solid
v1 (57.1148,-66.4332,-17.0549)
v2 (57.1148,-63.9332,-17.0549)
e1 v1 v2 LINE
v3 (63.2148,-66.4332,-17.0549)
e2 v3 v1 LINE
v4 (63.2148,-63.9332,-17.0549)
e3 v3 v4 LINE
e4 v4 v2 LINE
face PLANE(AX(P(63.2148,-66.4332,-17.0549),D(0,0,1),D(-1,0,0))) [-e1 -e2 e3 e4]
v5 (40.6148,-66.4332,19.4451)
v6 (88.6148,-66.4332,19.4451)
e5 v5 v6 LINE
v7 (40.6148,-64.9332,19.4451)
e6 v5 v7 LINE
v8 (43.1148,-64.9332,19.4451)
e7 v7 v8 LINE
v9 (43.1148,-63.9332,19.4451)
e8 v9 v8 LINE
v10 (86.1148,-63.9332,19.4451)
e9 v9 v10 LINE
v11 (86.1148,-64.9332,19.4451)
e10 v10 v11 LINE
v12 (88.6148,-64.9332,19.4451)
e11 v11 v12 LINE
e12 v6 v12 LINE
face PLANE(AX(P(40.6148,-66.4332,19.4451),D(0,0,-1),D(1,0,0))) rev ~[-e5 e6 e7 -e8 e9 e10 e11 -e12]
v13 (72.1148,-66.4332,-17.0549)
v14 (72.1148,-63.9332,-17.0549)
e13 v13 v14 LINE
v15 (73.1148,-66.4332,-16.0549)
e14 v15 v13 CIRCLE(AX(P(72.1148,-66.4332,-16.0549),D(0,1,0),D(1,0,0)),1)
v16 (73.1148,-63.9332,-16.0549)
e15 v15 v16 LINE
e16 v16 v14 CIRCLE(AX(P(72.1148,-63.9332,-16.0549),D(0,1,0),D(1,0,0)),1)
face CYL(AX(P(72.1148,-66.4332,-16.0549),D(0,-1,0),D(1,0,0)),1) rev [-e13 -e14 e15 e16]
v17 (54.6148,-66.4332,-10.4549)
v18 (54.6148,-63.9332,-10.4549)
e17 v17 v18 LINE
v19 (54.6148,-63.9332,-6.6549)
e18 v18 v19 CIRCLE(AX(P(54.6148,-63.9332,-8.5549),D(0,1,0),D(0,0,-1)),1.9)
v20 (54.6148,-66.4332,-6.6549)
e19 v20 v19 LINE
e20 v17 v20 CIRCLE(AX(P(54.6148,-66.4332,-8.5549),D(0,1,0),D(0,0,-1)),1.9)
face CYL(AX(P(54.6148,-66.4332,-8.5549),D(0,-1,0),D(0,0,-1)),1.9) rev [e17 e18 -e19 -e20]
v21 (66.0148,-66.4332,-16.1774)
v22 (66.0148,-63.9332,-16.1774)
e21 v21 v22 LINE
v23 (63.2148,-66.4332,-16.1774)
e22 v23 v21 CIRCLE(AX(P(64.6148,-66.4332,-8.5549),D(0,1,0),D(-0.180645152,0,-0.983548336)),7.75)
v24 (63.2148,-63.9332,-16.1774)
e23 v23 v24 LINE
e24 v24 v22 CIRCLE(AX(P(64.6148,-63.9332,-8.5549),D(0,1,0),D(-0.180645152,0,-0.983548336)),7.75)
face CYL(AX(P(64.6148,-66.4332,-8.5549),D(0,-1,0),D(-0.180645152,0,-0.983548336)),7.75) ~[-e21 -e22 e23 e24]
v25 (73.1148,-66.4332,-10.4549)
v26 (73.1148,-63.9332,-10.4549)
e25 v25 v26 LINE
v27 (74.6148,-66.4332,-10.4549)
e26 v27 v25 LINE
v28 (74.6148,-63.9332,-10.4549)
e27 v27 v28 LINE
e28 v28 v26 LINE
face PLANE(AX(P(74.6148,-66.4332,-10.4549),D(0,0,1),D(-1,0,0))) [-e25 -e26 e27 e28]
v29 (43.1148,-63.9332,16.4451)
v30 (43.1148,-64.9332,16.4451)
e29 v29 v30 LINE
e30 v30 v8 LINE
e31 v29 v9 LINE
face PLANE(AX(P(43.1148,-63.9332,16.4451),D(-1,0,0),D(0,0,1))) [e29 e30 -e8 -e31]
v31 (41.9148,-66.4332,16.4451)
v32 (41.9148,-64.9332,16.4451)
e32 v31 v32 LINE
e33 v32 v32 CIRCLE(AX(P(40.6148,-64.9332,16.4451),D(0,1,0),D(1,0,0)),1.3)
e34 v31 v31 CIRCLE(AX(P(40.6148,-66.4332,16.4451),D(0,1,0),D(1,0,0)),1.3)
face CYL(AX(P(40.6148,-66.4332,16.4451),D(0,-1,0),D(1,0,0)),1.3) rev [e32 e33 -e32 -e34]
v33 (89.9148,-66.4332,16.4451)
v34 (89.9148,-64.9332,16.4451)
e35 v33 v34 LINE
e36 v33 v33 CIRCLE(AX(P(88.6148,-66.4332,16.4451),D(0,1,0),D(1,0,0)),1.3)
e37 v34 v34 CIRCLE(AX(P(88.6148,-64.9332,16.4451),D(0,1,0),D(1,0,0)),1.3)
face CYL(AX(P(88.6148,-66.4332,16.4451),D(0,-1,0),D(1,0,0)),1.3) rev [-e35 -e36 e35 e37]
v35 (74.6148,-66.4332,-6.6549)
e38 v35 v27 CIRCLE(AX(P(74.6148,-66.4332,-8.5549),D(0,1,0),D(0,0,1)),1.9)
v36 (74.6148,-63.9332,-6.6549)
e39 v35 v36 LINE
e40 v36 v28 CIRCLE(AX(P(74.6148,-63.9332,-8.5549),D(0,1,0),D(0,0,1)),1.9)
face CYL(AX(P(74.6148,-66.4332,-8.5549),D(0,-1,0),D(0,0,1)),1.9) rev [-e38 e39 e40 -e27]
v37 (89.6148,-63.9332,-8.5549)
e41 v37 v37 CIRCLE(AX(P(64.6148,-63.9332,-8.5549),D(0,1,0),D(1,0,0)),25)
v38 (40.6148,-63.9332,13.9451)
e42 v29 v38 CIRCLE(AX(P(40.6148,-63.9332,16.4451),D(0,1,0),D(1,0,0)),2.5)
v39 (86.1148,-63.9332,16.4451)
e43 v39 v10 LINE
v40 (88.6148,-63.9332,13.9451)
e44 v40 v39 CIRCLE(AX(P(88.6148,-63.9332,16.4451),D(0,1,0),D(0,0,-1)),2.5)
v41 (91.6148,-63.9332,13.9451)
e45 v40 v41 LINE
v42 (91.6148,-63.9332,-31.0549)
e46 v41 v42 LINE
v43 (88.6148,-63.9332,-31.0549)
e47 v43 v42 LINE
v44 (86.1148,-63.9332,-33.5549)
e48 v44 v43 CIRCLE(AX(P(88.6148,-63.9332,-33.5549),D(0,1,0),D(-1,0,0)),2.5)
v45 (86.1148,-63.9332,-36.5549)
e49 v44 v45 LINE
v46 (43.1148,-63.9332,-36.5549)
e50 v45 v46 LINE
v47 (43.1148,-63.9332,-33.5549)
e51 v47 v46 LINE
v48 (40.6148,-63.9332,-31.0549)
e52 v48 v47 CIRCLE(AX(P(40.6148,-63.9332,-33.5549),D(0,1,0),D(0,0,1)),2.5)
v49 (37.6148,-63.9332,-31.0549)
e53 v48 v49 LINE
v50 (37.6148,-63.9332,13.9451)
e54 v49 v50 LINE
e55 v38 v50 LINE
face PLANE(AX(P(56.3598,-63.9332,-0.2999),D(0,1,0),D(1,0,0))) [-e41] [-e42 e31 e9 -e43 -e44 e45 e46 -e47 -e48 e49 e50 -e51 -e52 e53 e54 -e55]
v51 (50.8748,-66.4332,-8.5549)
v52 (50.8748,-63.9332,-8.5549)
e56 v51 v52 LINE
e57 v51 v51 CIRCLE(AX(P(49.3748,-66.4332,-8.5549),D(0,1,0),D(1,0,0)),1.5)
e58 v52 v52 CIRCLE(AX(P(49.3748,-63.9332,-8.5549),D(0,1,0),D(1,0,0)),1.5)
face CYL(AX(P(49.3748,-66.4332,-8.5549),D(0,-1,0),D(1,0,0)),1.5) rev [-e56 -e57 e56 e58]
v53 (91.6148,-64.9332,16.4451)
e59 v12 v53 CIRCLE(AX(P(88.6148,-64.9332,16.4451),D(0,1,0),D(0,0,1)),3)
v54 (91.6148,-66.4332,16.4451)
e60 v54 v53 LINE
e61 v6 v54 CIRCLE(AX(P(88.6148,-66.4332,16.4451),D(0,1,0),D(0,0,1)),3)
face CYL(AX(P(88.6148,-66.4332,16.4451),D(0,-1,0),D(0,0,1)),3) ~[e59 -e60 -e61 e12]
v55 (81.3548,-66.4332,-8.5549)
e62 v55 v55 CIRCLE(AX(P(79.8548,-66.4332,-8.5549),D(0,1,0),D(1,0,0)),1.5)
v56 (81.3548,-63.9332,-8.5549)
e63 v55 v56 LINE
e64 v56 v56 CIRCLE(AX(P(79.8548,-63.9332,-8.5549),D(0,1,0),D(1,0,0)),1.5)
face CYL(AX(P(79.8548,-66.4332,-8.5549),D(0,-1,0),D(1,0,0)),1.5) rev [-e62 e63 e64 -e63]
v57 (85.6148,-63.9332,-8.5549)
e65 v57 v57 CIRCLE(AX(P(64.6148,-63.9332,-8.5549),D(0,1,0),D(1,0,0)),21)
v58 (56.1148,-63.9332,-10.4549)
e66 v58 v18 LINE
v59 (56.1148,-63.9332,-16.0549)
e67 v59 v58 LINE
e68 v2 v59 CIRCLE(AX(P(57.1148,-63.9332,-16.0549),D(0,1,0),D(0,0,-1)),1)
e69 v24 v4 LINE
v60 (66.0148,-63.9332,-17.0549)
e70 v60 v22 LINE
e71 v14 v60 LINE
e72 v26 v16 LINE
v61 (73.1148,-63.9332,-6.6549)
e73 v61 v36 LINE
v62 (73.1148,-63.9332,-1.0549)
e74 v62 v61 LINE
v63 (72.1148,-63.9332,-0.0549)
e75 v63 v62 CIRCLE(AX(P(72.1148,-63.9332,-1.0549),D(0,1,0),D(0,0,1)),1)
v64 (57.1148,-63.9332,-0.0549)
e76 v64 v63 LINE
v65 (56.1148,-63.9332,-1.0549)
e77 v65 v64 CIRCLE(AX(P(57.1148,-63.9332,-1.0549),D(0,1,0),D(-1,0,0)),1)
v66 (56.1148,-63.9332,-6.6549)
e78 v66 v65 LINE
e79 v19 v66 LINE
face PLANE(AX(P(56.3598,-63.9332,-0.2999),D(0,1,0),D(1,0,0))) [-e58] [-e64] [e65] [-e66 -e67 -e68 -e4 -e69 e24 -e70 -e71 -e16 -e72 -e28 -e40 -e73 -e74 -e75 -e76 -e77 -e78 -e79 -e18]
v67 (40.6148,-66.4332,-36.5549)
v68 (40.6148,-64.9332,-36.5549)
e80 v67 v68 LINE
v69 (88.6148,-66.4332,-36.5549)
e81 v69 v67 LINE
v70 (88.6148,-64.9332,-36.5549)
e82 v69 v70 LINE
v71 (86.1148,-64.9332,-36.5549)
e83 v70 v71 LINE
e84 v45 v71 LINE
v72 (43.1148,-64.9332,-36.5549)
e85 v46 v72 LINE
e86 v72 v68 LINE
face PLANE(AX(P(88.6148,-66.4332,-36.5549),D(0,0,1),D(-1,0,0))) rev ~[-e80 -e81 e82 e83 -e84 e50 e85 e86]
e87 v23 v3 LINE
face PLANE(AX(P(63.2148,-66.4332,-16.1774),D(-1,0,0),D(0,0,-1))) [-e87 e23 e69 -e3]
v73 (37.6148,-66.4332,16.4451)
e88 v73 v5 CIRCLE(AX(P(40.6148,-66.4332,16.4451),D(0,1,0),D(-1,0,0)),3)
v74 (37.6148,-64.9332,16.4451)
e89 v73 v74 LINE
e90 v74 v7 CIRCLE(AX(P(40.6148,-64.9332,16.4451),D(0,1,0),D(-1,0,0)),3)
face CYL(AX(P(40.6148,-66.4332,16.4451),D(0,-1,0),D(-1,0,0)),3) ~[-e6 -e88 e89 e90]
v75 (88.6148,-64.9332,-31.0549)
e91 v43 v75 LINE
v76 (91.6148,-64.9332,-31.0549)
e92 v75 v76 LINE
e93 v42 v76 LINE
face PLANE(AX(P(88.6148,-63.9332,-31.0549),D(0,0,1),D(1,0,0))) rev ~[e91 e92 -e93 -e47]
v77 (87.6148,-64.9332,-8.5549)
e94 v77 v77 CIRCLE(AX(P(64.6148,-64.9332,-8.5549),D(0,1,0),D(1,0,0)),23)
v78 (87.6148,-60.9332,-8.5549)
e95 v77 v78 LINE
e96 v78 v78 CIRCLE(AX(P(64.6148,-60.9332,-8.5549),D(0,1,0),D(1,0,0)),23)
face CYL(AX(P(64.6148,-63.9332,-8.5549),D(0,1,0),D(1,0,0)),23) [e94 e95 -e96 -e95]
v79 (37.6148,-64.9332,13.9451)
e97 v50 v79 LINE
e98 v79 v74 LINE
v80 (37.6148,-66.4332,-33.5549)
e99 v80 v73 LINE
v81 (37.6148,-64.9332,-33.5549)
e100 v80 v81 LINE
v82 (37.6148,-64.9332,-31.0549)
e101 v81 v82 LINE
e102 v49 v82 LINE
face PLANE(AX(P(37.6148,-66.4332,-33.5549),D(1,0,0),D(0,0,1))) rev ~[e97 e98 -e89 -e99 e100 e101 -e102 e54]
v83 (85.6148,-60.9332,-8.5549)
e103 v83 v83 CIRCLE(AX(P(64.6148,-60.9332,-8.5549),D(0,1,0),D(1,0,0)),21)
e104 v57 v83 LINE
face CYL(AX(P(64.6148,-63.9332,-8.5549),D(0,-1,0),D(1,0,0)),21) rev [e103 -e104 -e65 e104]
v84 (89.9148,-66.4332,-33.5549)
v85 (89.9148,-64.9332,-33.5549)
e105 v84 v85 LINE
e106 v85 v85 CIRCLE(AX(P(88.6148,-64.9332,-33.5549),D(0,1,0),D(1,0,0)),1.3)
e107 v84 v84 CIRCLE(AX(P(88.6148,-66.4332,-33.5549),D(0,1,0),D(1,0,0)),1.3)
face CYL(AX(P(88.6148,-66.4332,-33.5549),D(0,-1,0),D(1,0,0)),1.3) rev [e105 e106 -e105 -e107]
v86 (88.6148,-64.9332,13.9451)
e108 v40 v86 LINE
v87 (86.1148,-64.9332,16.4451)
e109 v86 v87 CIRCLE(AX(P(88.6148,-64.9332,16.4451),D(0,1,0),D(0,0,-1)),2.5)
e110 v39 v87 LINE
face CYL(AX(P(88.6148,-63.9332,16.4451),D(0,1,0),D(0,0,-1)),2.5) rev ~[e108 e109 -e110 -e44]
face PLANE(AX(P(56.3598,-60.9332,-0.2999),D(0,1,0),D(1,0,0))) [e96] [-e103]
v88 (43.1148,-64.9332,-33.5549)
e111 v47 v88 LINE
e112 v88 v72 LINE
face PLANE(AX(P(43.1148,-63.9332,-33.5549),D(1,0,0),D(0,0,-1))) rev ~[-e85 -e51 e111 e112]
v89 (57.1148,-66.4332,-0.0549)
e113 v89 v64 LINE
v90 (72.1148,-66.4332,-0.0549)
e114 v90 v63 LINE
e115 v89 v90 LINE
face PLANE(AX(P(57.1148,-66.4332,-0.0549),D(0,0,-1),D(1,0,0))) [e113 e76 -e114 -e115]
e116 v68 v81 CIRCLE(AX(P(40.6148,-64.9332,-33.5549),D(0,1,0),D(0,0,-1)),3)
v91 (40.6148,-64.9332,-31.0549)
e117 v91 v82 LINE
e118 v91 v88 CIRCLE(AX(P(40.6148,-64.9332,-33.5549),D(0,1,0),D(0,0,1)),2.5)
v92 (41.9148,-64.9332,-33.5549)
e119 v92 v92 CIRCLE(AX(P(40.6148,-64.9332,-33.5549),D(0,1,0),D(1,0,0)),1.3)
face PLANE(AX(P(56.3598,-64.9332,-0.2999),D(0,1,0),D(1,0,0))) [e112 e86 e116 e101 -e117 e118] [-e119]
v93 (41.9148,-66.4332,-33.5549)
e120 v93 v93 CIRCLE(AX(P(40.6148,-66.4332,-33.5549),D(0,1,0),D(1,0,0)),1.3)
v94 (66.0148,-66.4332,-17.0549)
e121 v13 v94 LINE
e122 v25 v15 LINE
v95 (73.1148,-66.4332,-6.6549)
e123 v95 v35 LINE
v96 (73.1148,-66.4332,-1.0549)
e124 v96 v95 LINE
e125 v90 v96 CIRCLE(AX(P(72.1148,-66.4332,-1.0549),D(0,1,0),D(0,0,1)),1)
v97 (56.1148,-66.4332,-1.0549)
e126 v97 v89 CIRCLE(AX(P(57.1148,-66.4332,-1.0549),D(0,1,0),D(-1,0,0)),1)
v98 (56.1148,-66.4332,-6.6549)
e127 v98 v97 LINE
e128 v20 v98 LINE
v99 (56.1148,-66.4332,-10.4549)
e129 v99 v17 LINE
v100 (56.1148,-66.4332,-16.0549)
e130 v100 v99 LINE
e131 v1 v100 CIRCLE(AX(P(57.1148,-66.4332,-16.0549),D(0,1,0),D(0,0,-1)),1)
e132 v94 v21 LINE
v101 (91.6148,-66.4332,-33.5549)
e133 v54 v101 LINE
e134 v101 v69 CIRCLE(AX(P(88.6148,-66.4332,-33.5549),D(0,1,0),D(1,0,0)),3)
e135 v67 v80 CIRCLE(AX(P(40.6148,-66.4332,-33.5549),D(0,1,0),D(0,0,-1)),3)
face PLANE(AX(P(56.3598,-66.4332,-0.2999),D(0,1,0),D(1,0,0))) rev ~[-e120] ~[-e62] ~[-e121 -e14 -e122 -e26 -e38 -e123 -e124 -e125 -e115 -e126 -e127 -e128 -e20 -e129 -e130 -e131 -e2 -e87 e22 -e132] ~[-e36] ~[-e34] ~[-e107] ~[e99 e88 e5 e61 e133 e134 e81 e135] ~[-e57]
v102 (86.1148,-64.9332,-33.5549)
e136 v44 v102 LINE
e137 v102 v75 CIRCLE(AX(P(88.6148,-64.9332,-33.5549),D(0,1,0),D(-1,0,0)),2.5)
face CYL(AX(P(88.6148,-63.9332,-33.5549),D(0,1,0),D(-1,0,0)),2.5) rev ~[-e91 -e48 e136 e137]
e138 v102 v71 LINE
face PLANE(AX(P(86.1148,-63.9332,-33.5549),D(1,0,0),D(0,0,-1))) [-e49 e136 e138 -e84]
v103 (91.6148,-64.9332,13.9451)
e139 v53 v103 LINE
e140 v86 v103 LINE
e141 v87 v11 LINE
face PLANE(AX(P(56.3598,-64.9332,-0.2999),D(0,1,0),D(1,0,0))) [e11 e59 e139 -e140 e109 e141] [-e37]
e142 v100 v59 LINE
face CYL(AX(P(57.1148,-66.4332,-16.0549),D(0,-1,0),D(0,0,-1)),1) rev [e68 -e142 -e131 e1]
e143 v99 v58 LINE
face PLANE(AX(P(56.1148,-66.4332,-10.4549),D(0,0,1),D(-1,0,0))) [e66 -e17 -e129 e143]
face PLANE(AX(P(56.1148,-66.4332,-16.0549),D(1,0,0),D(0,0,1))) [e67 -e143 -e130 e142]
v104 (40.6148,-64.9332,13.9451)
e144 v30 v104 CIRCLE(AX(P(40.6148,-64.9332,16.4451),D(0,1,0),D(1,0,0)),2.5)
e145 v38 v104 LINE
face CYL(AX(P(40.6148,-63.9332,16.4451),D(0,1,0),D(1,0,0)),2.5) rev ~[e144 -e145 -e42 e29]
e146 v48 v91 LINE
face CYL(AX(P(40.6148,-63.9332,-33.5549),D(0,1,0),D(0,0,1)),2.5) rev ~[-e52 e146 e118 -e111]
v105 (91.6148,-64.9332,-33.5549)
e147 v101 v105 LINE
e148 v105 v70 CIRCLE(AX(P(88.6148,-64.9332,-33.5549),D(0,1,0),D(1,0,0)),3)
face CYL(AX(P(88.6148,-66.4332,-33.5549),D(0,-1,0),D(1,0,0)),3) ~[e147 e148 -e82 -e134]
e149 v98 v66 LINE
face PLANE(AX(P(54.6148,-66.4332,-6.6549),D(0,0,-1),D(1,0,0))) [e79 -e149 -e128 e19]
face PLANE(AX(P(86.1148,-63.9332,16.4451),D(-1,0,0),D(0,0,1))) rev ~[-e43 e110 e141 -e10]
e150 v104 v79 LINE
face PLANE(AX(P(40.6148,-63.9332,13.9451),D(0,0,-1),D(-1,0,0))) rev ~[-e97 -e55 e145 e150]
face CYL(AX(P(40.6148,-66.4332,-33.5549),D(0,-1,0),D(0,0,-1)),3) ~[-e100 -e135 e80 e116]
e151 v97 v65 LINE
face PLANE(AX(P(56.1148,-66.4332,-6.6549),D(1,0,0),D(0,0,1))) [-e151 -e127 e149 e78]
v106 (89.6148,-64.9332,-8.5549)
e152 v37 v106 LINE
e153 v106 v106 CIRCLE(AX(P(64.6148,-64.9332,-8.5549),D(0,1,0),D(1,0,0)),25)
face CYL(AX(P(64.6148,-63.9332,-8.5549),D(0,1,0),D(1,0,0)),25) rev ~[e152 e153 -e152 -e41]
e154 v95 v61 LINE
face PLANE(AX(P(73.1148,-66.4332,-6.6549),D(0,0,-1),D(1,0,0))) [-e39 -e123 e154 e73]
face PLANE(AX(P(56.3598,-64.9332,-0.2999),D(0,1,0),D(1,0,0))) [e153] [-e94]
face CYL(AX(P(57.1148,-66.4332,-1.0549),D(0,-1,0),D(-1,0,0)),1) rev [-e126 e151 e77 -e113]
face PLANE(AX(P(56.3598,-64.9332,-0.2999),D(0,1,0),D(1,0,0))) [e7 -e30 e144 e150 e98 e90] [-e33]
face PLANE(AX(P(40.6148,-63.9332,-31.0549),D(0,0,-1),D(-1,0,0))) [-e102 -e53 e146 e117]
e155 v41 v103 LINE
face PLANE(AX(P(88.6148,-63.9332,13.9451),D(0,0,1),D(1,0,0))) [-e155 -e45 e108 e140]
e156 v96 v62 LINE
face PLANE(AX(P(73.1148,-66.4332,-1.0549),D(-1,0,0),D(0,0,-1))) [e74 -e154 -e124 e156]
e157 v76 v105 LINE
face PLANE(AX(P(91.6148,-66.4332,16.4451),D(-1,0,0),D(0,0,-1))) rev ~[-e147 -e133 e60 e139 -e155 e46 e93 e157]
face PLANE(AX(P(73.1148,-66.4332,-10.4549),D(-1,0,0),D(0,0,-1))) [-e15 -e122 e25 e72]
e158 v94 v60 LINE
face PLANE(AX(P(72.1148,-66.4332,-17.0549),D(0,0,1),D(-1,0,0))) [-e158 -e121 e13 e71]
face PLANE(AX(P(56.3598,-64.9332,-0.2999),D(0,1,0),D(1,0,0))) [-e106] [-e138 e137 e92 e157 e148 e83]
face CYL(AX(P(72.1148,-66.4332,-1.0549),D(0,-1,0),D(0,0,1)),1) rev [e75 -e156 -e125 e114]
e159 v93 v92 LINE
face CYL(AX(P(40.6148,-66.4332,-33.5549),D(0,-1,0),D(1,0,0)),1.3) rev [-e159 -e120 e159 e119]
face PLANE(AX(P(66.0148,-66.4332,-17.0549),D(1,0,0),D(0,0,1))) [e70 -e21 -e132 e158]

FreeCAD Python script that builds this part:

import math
import FreeCAD as App
import Part
import Sketcher

doc = App.newDocument("Part")
body = doc.addObject("PartDesign::Body", "Body")

# Sketch on XZ plane
sketch1 = body.newObject("Sketcher::SketchObject", "Sketch")
sketch1.AttachmentSupport = (doc.getObject("XZ_Plane"), [""])
sketch1.MapMode = "FlatFace"
sketch1.AttachmentOffset = App.Placement(App.Vector(0, 0, 66.4332), App.Rotation())
sketch1.addGeometry(Part.ArcOfCircle(Part.Circle(App.Vector(40.6148, 16.4451, 0), App.Vector(0, 0, 1), 3), math.radians(90), math.radians(180)), False)
sketch1.addGeometry(Part.LineSegment(App.Vector(40.6148, 19.4451, 0), App.Vector(88.6148, 19.4451, 0)), False)
sketch1.addGeometry(Part.ArcOfCircle(Part.Circle(App.Vector(88.6148, 16.4451, 0), App.Vector(0, 0, 1), 3), math.radians(0), math.radians(90)), False)
sketch1.addGeometry(Part.LineSegment(App.Vector(91.6148, 16.4451, 0), App.Vector(91.6148, -33.5549, 0)), False)
sketch1.addGeometry(Part.ArcOfCircle(Part.Circle(App.Vector(88.6148, -33.5549, 0), App.Vector(0, 0, 1), 3), math.radians(-90), math.radians(0)), False)
sketch1.addGeometry(Part.LineSegment(App.Vector(88.6148, -36.5549, 0), App.Vector(40.6148, -36.5549, 0)), False)
sketch1.addGeometry(Part.ArcOfCircle(Part.Circle(App.Vector(40.6148, -33.5549, 0), App.Vector(0, 0, 1), 3), math.radians(180), math.radians(270)), False)
sketch1.addGeometry(Part.LineSegment(App.Vector(37.6148, -33.5549, 0), App.Vector(37.6148, 16.4451, 0)), False)
sketch1.addGeometry(Part.Circle(App.Vector(40.6148, 16.4451, 0), App.Vector(0, 0, 1), 1.3), False)
sketch1.addGeometry(Part.Circle(App.Vector(88.6148, 16.4451, 0), App.Vector(0, 0, 1), 1.3), False)
sketch1.addGeometry(Part.Circle(App.Vector(40.6148, -33.5549, 0), App.Vector(0, 0, 1), 1.3), False)
sketch1.addGeometry(Part.Circle(App.Vector(88.6148, -33.5549, 0), App.Vector(0, 0, 1), 1.3), False)
sketch1.addGeometry(Part.Circle(App.Vector(79.8548, -8.5549, 0), App.Vector(0, 0, 1), 1.5), False)
sketch1.addGeometry(Part.Circle(App.Vector(49.3748, -8.5549, 0), App.Vector(0, 0, 1), 1.5), False)
sketch1.addGeometry(Part.LineSegment(App.Vector(66.0148, -16.1774, 0), App.Vector(66.0148, -17.0549, 0)), False)
sketch1.addGeometry(Part.LineSegment(App.Vector(66.0148, -17.0549, 0), App.Vector(72.1148, -17.0549, 0)), False)
sketch1.addGeometry(Part.ArcOfCircle(Part.Circle(App.Vector(72.1148, -16.0549, 0), App.Vector(0, 0, 1), 1), math.radians(-90), math.radians(0)), False)
sketch1.addGeometry(Part.LineSegment(App.Vector(73.1148, -16.0549, 0), App.Vector(73.1148, -10.4549, 0)), False)
sketch1.addGeometry(Part.LineSegment(App.Vector(73.1148, -10.4549, 0), App.Vector(74.6148, -10.4549, 0)), False)
sketch1.addGeometry(Part.ArcOfCircle(Part.Circle(App.Vector(74.6148, -8.5549, 0), App.Vector(0, 0, 1), 1.9), math.radians(-90), math.radians(90)), False)
sketch1.addGeometry(Part.LineSegment(App.Vector(74.6148, -6.6549, 0), App.Vector(73.1148, -6.6549, 0)), False)
sketch1.addGeometry(Part.LineSegment(App.Vector(73.1148, -6.6549, 0), App.Vector(73.1148, -1.0549, 0)), False)
sketch1.addGeometry(Part.ArcOfCircle(Part.Circle(App.Vector(72.1148, -1.0549, 0), App.Vector(0, 0, 1), 1), math.radians(0), math.radians(90)), False)
sketch1.addGeometry(Part.LineSegment(App.Vector(72.1148, -0.0549, 0), App.Vector(57.1148, -0.0549, 0)), False)
sketch1.addGeometry(Part.ArcOfCircle(Part.Circle(App.Vector(57.1148, -1.0549, 0), App.Vector(0, 0, 1), 1), math.radians(90), math.radians(180)), False)
sketch1.addGeometry(Part.LineSegment(App.Vector(56.1148, -1.0549, 0), App.Vector(56.1148, -6.6549, 0)), False)
sketch1.addGeometry(Part.LineSegment(App.Vector(56.1148, -6.6549, 0), App.Vector(54.6148, -6.6549, 0)), False)
sketch1.addGeometry(Part.ArcOfCircle(Part.Circle(App.Vector(54.6148, -8.5549, 0), App.Vector(0, 0, 1), 1.9), math.radians(90), math.radians(270)), False)
sketch1.addGeometry(Part.LineSegment(App.Vector(54.6148, -10.4549, 0), App.Vector(56.1148, -10.4549, 0)), False)
sketch1.addGeometry(Part.LineSegment(App.Vector(56.1148, -10.4549, 0), App.Vector(56.1148, -16.0549, 0)), False)
sketch1.addGeometry(Part.ArcOfCircle(Part.Circle(App.Vector(57.1148, -16.0549, 0), App.Vector(0, 0, 1), 1), math.radians(180), math.radians(270)), False)
sketch1.addGeometry(Part.LineSegment(App.Vector(57.1148, -17.0549, 0), App.Vector(63.2148, -17.0549, 0)), False)
sketch1.addGeometry(Part.LineSegment(App.Vector(63.2148, -17.0549, 0), App.Vector(63.2148, -16.1774, 0)), False)
sketch1.addGeometry(Part.ArcOfCircle(Part.Circle(App.Vector(64.6148, -8.5549, 0), App.Vector(0, 0, 1), 7.75), math.radians(-79.59266), math.radians(259.59266)), False)
sketch1.addConstraint(Sketcher.Constraint("Tangent", 0, 1, 1, 1))
sketch1.addConstraint(Sketcher.Constraint("Tangent", 1, 2, 2, 2))
sketch1.addConstraint(Sketcher.Constraint("Tangent", 2, 1, 3, 1))
sketch1.addConstraint(Sketcher.Constraint("Tangent", 3, 2, 4, 2))
sketch1.addConstraint(Sketcher.Constraint("Tangent", 4, 1, 5, 1))
sketch1.addConstraint(Sketcher.Constraint("Tangent", 5, 2, 6, 2))
sketch1.addConstraint(Sketcher.Constraint("Tangent", 6, 1, 7, 1))
sketch1.addConstraint(Sketcher.Constraint("Tangent", 7, 2, 0, 2))
sketch1.addConstraint(Sketcher.Constraint("Coincident", 14, 2, 15, 1))
sketch1.addConstraint(Sketcher.Constraint("Tangent", 15, 2, 16, 1))
sketch1.addConstraint(Sketcher.Constraint("Tangent", 16, 2, 17, 1))
sketch1.addConstraint(Sketcher.Constraint("Coincident", 17, 2, 18, 1))
sketch1.addConstraint(Sketcher.Constraint("Tangent", 18, 2, 19, 1))
sketch1.addConstraint(Sketcher.Constraint("Tangent", 19, 2, 20, 1))
sketch1.addConstraint(Sketcher.Constraint("Coincident", 20, 2, 21, 1))
sketch1.addConstraint(Sketcher.Constraint("Tangent", 21, 2, 22, 1))
sketch1.addConstraint(Sketcher.Constraint("Tangent", 22, 2, 23, 1))
sketch1.addConstraint(Sketcher.Constraint("Tangent", 23, 2, 24, 1))
sketch1.addConstraint(Sketcher.Constraint("Tangent", 24, 2, 25, 1))
sketch1.addConstraint(Sketcher.Constraint("Coincident", 25, 2, 26, 1))
sketch1.addConstraint(Sketcher.Constraint("Tangent", 26, 2, 27, 1))
sketch1.addConstraint(Sketcher.Constraint("Tangent", 27, 2, 28, 1))
sketch1.addConstraint(Sketcher.Constraint("Coincident", 28, 2, 29, 1))
sketch1.addConstraint(Sketcher.Constraint("Tangent", 29, 2, 30, 1))
sketch1.addConstraint(Sketcher.Constraint("Tangent", 30, 2, 31, 1))
sketch1.addConstraint(Sketcher.Constraint("Coincident", 31, 2, 32, 1))
sketch1.addConstraint(Sketcher.Constraint("Coincident", 32, 2, 33, 2))
sketch1.addConstraint(Sketcher.Constraint("Coincident", 33, 1, 14, 1))
sketch1.addConstraint(Sketcher.Constraint("Horizontal", 1))
sketch1.addConstraint(Sketcher.Constraint("Vertical", 3))
sketch1.addConstraint(Sketcher.Constraint("Horizontal", 5))
sketch1.addConstraint(Sketcher.Constraint("Vertical", 7))
sketch1.addConstraint(Sketcher.Constraint("Vertical", 14))
sketch1.addConstraint(Sketcher.Constraint("Horizontal", 15))
sketch1.addConstraint(Sketcher.Constraint("Vertical", 17))
sketch1.addConstraint(Sketcher.Constraint("Horizontal", 18))
sketch1.addConstraint(Sketcher.Constraint("Horizontal", 20))
sketch1.addConstraint(Sketcher.Constraint("Vertical", 21))
sketch1.addConstraint(Sketcher.Constraint("Horizontal", 23))
sketch1.addConstraint(Sketcher.Constraint("Vertical", 25))
sketch1.addConstraint(Sketcher.Constraint("Horizontal", 26))
sketch1.addConstraint(Sketcher.Constraint("Horizontal", 28))
sketch1.addConstraint(Sketcher.Constraint("Vertical", 29))
sketch1.addConstraint(Sketcher.Constraint("Horizontal", 31))
sketch1.addConstraint(Sketcher.Constraint("Vertical", 32))
sketch1.addConstraint(Sketcher.Constraint("Coincident", 8, 3, 0, 3))
sketch1.addConstraint(Sketcher.Constraint("Coincident", 9, 3, 2, 3))
sketch1.addConstraint(Sketcher.Constraint("Coincident", 10, 3, 6, 3))
sketch1.addConstraint(Sketcher.Constraint("Coincident", 11, 3, 4, 3))
sketch1.addConstraint(Sketcher.Constraint("Equal", 0, 2))
sketch1.addConstraint(Sketcher.Constraint("Equal", 2, 4))
sketch1.addConstraint(Sketcher.Constraint("Equal", 4, 6))
sketch1.addConstraint(Sketcher.Constraint("Equal", 8, 9))
sketch1.addConstraint(Sketcher.Constraint("Equal", 9, 10))
sketch1.addConstraint(Sketcher.Constraint("Equal", 10, 11))
sketch1.addConstraint(Sketcher.Constraint("Equal", 12, 13))
sketch1.addConstraint(Sketcher.Constraint("Equal", 16, 22))
sketch1.addConstraint(Sketcher.Constraint("Equal", 22, 24))
sketch1.addConstraint(Sketcher.Constraint("Equal", 19, 27))
sketch1.addConstraint(Sketcher.Constraint("Equal", 24, 30))
sketch1.addConstraint(Sketcher.Constraint("Horizontal", 12, 3, 13, 3))
sketch1.addConstraint(Sketcher.Constraint("Horizontal", 13, 3, 19, 3))
sketch1.addConstraint(Sketcher.Constraint("Horizontal", 19, 3, 27, 3))
sketch1.addConstraint(Sketcher.Constraint("Horizontal", 16, 3, 30, 3))
sketch1.addConstraint(Sketcher.Constraint("Horizontal", 27, 3, 33, 3))
sketch1.addConstraint(Sketcher.Constraint("Horizontal", 32, 2, 33, 1))
sketch1.addConstraint(Sketcher.Constraint("Vertical", 16, 3, 22, 3))
sketch1.addConstraint(Sketcher.Constraint("Vertical", 24, 3, 30, 3))
sketch1.addConstraint(Sketcher.Constraint("Equal", 20, 26))
sketch1.addConstraint(Sketcher.Constraint("Equal", 15, 31))
sketch1.addConstraint(Sketcher.Constraint("Equal", 17, 21))
sketch1.addConstraint(Sketcher.Constraint("Diameter", 12, 3.0))
sketch1.addConstraint(Sketcher.Constraint("Radius", 0, 3.0))
sketch1.addConstraint(Sketcher.Constraint("Diameter", 8, 2.6))
sketch1.addConstraint(Sketcher.Constraint("DistanceX", 1, 1, 1, 2, 48.0))
sketch1.addConstraint(Sketcher.Constraint("DistanceY", 3, 2, 3, 1, 50.0))
sketch1.addConstraint(Sketcher.Constraint("Radius", 16, 1.0))
sketch1.addConstraint(Sketcher.Constraint("Radius", 19, 1.9))
sketch1.addConstraint(Sketcher.Constraint("DistanceX", 23, 2, 23, 1, 15.0))
sketch1.addConstraint(Sketcher.Constraint("Radius", 33, 7.75))
sketch1.addConstraint(Sketcher.Constraint("DistanceX", 15, 1, 15, 2, 6.1))
sketch1.addConstraint(Sketcher.Constraint("DistanceX", 18, 1, 18, 2, 1.5))
sketch1.addConstraint(Sketcher.Constraint("DistanceY", 17, 1, 17, 2, 5.6))
sketch1.addConstraint(Sketcher.Constraint("DistanceY", 12, 3, 2, 3, 25.0))
sketch1.addConstraint(Sketcher.Constraint("DistanceX", 19, 3, 2, 3, 14.0))
sketch1.addConstraint(Sketcher.Constraint("DistanceX", 12, 3, 2, 3, 8.76))
sketch1.addConstraint(Sketcher.Constraint("DistanceX", 0, 3, 13, 3, 8.76))
sketch1.addConstraint(Sketcher.Constraint("DistanceY", -1, 1, 0, 3, 16.445))
sketch1.addConstraint(Sketcher.Constraint("DistanceX", -1, 1, 0, 3, 40.6148))
pad1 = body.newObject("PartDesign::Pad", "Pad")
pad1.Profile = sketch1
pad1.Length = 2.5
pad1.Reversed = True

# Sketch on XZ plane
sketch2 = body.newObject("Sketcher::SketchObject", "Sketch001")
sketch2.AttachmentSupport = (doc.getObject("XZ_Plane"), [""])
sketch2.MapMode = "FlatFace"
sketch2.AttachmentOffset = App.Placement(App.Vector(0, 0, 63.9332), App.Rotation())
sketch2.addGeometry(Part.Circle(App.Vector(64.6148, -8.5549, 0), App.Vector(0, 0, 1), 23), False)
sketch2.addGeometry(Part.Circle(App.Vector(64.6148, -8.5549, 0), App.Vector(0, 0, 1), 21), False)
sketch2.addConstraint(Sketcher.Constraint("Coincident", 1, 3, 0, 3))
sketch2.addConstraint(Sketcher.Constraint("Diameter", 0, 46.0))
sketch2.addConstraint(Sketcher.Constraint("Diameter", 1, 42.0))
sketch2.addConstraint(Sketcher.Constraint("DistanceY", 0, 3, -1, 1, 8.555))
sketch2.addConstraint(Sketcher.Constraint("DistanceX", -1, 1, 0, 3, 64.6148))
pad2 = body.newObject("PartDesign::Pad", "Pad001")
pad2.Profile = sketch2
pad2.Length = 3
pad2.Reversed = True

# Sketch on XZ plane
sketch3 = body.newObject("Sketcher::SketchObject", "Sketch002")
sketch3.AttachmentSupport = (doc.getObject("XZ_Plane"), [""])
sketch3.MapMode = "FlatFace"
sketch3.AttachmentOffset = App.Placement(App.Vector(0, 0, 63.9332), App.Rotation())
sketch3.addGeometry(Part.LineSegment(App.Vector(86.1148, 19.4451, 0), App.Vector(88.6148, 19.4451, 0)), False)
sketch3.addGeometry(Part.ArcOfCircle(Part.Circle(App.Vector(88.6148, 16.4451, 0), App.Vector(0, 0, 1), 3), math.radians(0), math.radians(90)), False)
sketch3.addGeometry(Part.LineSegment(App.Vector(91.6148, 16.4451, 0), App.Vector(91.6148, 13.9451, 0)), False)
sketch3.addGeometry(Part.LineSegment(App.Vector(91.6148, 13.9451, 0), App.Vector(88.6148, 13.9451, 0)), False)
sketch3.addGeometry(Part.ArcOfCircle(Part.Circle(App.Vector(88.6148, 16.4451, 0), App.Vector(0, 0, 1), 2.5), math.radians(180), math.radians(270)), False)
sketch3.addGeometry(Part.LineSegment(App.Vector(86.1148, 16.4451, 0), App.Vector(86.1148, 19.4451, 0)), False)
sketch3.addGeometry(Part.Circle(App.Vector(88.6148, 16.4451, 0), App.Vector(0, 0, 1), 1.3), False)
sketch3.addGeometry(Part.LineSegment(App.Vector(40.6148, 19.4451, 0), App.Vector(43.1148, 19.4451, 0)), False)
sketch3.addGeometry(Part.LineSegment(App.Vector(43.1148, 19.4451, 0), App.Vector(43.1148, 16.4451, 0)), False)
sketch3.addGeometry(Part.ArcOfCircle(Part.Circle(App.Vector(40.6148, 16.4451, 0), App.Vector(0, 0, 1), 2.5), math.radians(-90), math.radians(0)), False)
sketch3.addGeometry(Part.LineSegment(App.Vector(40.6148, 13.9451, 0), App.Vector(37.6148, 13.9451, 0)), False)
sketch3.addGeometry(Part.LineSegment(App.Vector(37.6148, 13.9451, 0), App.Vector(37.6148, 16.4451, 0)), False)
sketch3.addGeometry(Part.ArcOfCircle(Part.Circle(App.Vector(40.6148, 16.4451, 0), App.Vector(0, 0, 1), 3), math.radians(90), math.radians(180)), False)
sketch3.addGeometry(Part.Circle(App.Vector(40.6148, 16.4451, 0), App.Vector(0, 0, 1), 1.3), False)
sketch3.addGeometry(Part.LineSegment(App.Vector(88.6148, -31.0549, 0), App.Vector(91.6148, -31.0549, 0)), False)
sketch3.addGeometry(Part.LineSegment(App.Vector(91.6148, -31.0549, 0), App.Vector(91.6148, -33.5549, 0)), False)
sketch3.addGeometry(Part.ArcOfCircle(Part.Circle(App.Vector(88.6148, -33.5549, 0), App.Vector(0, 0, 1), 3), math.radians(-90), math.radians(0)), False)
sketch3.addGeometry(Part.LineSegment(App.Vector(88.6148, -36.5549, 0), App.Vector(86.1148, -36.5549, 0)), False)
sketch3.addGeometry(Part.LineSegment(App.Vector(86.1148, -36.5549, 0), App.Vector(86.1148, -33.5549, 0)), False)
sketch3.addGeometry(Part.ArcOfCircle(Part.Circle(App.Vector(88.6148, -33.5549, 0), App.Vector(0, 0, 1), 2.5), math.radians(90), math.radians(180)), False)
sketch3.addGeometry(Part.Circle(App.Vector(88.6148, -33.5549, 0), App.Vector(0, 0, 1), 1.3), False)
sketch3.addGeometry(Part.LineSegment(App.Vector(37.6148, -33.5549, 0), App.Vector(37.6148, -31.0549, 0)), False)
sketch3.addGeometry(Part.LineSegment(App.Vector(37.6148, -31.0549, 0), App.Vector(40.6148, -31.0549, 0)), False)
sketch3.addGeometry(Part.ArcOfCircle(Part.Circle(App.Vector(40.6148, -33.5549, 0), App.Vector(0, 0, 1), 2.5), math.radians(0), math.radians(90)), False)
sketch3.addGeometry(Part.LineSegment(App.Vector(43.1148, -33.5549, 0), App.Vector(43.1148, -36.5549, 0)), False)
sketch3.addGeometry(Part.LineSegment(App.Vector(43.1148, -36.5549, 0), App.Vector(40.6148, -36.5549, 0)), False)
sketch3.addGeometry(Part.ArcOfCircle(Part.Circle(App.Vector(40.6148, -33.5549, 0), App.Vector(0, 0, 1), 3), math.radians(180), math.radians(270)), False)
sketch3.addGeometry(Part.Circle(App.Vector(40.6148, -33.5549, 0), App.Vector(0, 0, 1), 1.3), False)
sketch3.addGeometry(Part.Circle(App.Vector(64.6148, -8.5549, 0), App.Vector(0, 0, 1), 25), False)
sketch3.addGeometry(Part.Circle(App.Vector(64.6148, -8.5549, 0), App.Vector(0, 0, 1), 23), False)
sketch3.addConstraint(Sketcher.Constraint("Tangent", 0, 2, 1, 2))
sketch3.addConstraint(Sketcher.Constraint("Tangent", 1, 1, 2, 1))
sketch3.addConstraint(Sketcher.Constraint("Coincident", 2, 2, 3, 1))
sketch3.addConstraint(Sketcher.Constraint("Tangent", 3, 2, 4, 2))
sketch3.addConstraint(Sketcher.Constraint("Tangent", 4, 1, 5, 1))
sketch3.addConstraint(Sketcher.Constraint("Coincident", 5, 2, 0, 1))
sketch3.addConstraint(Sketcher.Constraint("Coincident", 7, 2, 8, 1))
sketch3.addConstraint(Sketcher.Constraint("Tangent", 8, 2, 9, 2))
sketch3.addConstraint(Sketcher.Constraint("Tangent", 9, 1, 10, 1))
sketch3.addConstraint(Sketcher.Constraint("Coincident", 10, 2, 11, 1))
sketch3.addConstraint(Sketcher.Constraint("Tangent", 11, 2, 12, 2))
sketch3.addConstraint(Sketcher.Constraint("Tangent", 12, 1, 7, 1))
sketch3.addConstraint(Sketcher.Constraint("Coincident", 14, 2, 15, 1))
sketch3.addConstraint(Sketcher.Constraint("Tangent", 15, 2, 16, 2))
sketch3.addConstraint(Sketcher.Constraint("Tangent", 16, 1, 17, 1))
sketch3.addConstraint(Sketcher.Constraint("Coincident", 17, 2, 18, 1))
sketch3.addConstraint(Sketcher.Constraint("Tangent", 18, 2, 19, 2))
sketch3.addConstraint(Sketcher.Constraint("Tangent", 19, 1, 14, 1))
sketch3.addConstraint(Sketcher.Constraint("Coincident", 21, 2, 22, 1))
sketch3.addConstraint(Sketcher.Constraint("Tangent", 22, 2, 23, 2))
sketch3.addConstraint(Sketcher.Constraint("Tangent", 23, 1, 24, 1))
sketch3.addConstraint(Sketcher.Constraint("Coincident", 24, 2, 25, 1))
sketch3.addConstraint(Sketcher.Constraint("Tangent", 25, 2, 26, 2))
sketch3.addConstraint(Sketcher.Constraint("Tangent", 26, 1, 21, 1))
sketch3.addConstraint(Sketcher.Constraint("Horizontal", 0))
sketch3.addConstraint(Sketcher.Constraint("Vertical", 2))
sketch3.addConstraint(Sketcher.Constraint("Horizontal", 3))
sketch3.addConstraint(Sketcher.Constraint("Vertical", 5))
sketch3.addConstraint(Sketcher.Constraint("Horizontal", 7))
sketch3.addConstraint(Sketcher.Constraint("Vertical", 8))
sketch3.addConstraint(Sketcher.Constraint("Horizontal", 10))
sketch3.addConstraint(Sketcher.Constraint("Vertical", 11))
sketch3.addConstraint(Sketcher.Constraint("Horizontal", 14))
sketch3.addConstraint(Sketcher.Constraint("Vertical", 15))
sketch3.addConstraint(Sketcher.Constraint("Horizontal", 17))
sketch3.addConstraint(Sketcher.Constraint("Vertical", 18))
sketch3.addConstraint(Sketcher.Constraint("Vertical", 21))
sketch3.addConstraint(Sketcher.Constraint("Horizontal", 22))
sketch3.addConstraint(Sketcher.Constraint("Vertical", 24))
sketch3.addConstraint(Sketcher.Constraint("Horizontal", 25))
sketch3.addConstraint(Sketcher.Constraint("Coincident", 4, 3, 1, 3))
sketch3.addConstraint(Sketcher.Constraint("Coincident", 6, 3, 1, 3))
sketch3.addConstraint(Sketcher.Constraint("Coincident", 12, 3, 9, 3))
sketch3.addConstraint(Sketcher.Constraint("Coincident", 13, 3, 9, 3))
sketch3.addConstraint(Sketcher.Constraint("Coincident", 19, 3, 16, 3))
sketch3.addConstraint(Sketcher.Constraint("Coincident", 20, 3, 16, 3))
sketch3.addConstraint(Sketcher.Constraint("Coincident", 26, 3, 23, 3))
sketch3.addConstraint(Sketcher.Constraint("Coincident", 27, 3, 23, 3))
sketch3.addConstraint(Sketcher.Constraint("Coincident", 29, 3, 28, 3))
sketch3.addConstraint(Sketcher.Constraint("Equal", 4, 9))
sketch3.addConstraint(Sketcher.Constraint("Equal", 1, 12))
sketch3.addConstraint(Sketcher.Constraint("Equal", 6, 13))
sketch3.addConstraint(Sketcher.Constraint("Equal", 12, 16))
sketch3.addConstraint(Sketcher.Constraint("Equal", 9, 19))
sketch3.addConstraint(Sketcher.Constraint("Equal", 13, 20))
sketch3.addConstraint(Sketcher.Constraint("Equal", 19, 23))
sketch3.addConstraint(Sketcher.Constraint("Equal", 16, 26))
sketch3.addConstraint(Sketcher.Constraint("Equal", 20, 27))
sketch3.addConstraint(Sketcher.Constraint("Horizontal", 6, 3, 9, 3))
sketch3.addConstraint(Sketcher.Constraint("Horizontal", 20, 3, 23, 3))
sketch3.addConstraint(Sketcher.Constraint("Vertical", 6, 3, 16, 3))
sketch3.addConstraint(Sketcher.Constraint("Vertical", 13, 3, 23, 3))
sketch3.addConstraint(Sketcher.Constraint("Diameter", 28, 50.0))
sketch3.addConstraint(Sketcher.Constraint("Diameter", 29, 46.0))
sketch3.addConstraint(Sketcher.Constraint("Radius", 4, 2.5))
sketch3.addConstraint(Sketcher.Constraint("Radius", 1, 3.0))
sketch3.addConstraint(Sketcher.Constraint("DistanceY", 16, 3, 1, 3, 50.0))
sketch3.addConstraint(Sketcher.Constraint("Diameter", 6, 2.6))
sketch3.addConstraint(Sketcher.Constraint("DistanceX", 9, 3, 1, 3, 48.0))
sketch3.addConstraint(Sketcher.Constraint("DistanceX", 28, 3, 1, 3, 24.0))
sketch3.addConstraint(Sketcher.Constraint("DistanceY", 28, 3, 1, 3, 25.0))
sketch3.addConstraint(Sketcher.Constraint("DistanceY", -1, 1, 1, 3, 16.445))
sketch3.addConstraint(Sketcher.Constraint("DistanceX", -1, 1, 1, 3, 88.6148))
pocket1 = body.newObject("PartDesign::Pocket", "Pocket")
pocket1.Profile = sketch3
pocket1.Length = 1
pocket1.Reversed = True

doc.recompute()
